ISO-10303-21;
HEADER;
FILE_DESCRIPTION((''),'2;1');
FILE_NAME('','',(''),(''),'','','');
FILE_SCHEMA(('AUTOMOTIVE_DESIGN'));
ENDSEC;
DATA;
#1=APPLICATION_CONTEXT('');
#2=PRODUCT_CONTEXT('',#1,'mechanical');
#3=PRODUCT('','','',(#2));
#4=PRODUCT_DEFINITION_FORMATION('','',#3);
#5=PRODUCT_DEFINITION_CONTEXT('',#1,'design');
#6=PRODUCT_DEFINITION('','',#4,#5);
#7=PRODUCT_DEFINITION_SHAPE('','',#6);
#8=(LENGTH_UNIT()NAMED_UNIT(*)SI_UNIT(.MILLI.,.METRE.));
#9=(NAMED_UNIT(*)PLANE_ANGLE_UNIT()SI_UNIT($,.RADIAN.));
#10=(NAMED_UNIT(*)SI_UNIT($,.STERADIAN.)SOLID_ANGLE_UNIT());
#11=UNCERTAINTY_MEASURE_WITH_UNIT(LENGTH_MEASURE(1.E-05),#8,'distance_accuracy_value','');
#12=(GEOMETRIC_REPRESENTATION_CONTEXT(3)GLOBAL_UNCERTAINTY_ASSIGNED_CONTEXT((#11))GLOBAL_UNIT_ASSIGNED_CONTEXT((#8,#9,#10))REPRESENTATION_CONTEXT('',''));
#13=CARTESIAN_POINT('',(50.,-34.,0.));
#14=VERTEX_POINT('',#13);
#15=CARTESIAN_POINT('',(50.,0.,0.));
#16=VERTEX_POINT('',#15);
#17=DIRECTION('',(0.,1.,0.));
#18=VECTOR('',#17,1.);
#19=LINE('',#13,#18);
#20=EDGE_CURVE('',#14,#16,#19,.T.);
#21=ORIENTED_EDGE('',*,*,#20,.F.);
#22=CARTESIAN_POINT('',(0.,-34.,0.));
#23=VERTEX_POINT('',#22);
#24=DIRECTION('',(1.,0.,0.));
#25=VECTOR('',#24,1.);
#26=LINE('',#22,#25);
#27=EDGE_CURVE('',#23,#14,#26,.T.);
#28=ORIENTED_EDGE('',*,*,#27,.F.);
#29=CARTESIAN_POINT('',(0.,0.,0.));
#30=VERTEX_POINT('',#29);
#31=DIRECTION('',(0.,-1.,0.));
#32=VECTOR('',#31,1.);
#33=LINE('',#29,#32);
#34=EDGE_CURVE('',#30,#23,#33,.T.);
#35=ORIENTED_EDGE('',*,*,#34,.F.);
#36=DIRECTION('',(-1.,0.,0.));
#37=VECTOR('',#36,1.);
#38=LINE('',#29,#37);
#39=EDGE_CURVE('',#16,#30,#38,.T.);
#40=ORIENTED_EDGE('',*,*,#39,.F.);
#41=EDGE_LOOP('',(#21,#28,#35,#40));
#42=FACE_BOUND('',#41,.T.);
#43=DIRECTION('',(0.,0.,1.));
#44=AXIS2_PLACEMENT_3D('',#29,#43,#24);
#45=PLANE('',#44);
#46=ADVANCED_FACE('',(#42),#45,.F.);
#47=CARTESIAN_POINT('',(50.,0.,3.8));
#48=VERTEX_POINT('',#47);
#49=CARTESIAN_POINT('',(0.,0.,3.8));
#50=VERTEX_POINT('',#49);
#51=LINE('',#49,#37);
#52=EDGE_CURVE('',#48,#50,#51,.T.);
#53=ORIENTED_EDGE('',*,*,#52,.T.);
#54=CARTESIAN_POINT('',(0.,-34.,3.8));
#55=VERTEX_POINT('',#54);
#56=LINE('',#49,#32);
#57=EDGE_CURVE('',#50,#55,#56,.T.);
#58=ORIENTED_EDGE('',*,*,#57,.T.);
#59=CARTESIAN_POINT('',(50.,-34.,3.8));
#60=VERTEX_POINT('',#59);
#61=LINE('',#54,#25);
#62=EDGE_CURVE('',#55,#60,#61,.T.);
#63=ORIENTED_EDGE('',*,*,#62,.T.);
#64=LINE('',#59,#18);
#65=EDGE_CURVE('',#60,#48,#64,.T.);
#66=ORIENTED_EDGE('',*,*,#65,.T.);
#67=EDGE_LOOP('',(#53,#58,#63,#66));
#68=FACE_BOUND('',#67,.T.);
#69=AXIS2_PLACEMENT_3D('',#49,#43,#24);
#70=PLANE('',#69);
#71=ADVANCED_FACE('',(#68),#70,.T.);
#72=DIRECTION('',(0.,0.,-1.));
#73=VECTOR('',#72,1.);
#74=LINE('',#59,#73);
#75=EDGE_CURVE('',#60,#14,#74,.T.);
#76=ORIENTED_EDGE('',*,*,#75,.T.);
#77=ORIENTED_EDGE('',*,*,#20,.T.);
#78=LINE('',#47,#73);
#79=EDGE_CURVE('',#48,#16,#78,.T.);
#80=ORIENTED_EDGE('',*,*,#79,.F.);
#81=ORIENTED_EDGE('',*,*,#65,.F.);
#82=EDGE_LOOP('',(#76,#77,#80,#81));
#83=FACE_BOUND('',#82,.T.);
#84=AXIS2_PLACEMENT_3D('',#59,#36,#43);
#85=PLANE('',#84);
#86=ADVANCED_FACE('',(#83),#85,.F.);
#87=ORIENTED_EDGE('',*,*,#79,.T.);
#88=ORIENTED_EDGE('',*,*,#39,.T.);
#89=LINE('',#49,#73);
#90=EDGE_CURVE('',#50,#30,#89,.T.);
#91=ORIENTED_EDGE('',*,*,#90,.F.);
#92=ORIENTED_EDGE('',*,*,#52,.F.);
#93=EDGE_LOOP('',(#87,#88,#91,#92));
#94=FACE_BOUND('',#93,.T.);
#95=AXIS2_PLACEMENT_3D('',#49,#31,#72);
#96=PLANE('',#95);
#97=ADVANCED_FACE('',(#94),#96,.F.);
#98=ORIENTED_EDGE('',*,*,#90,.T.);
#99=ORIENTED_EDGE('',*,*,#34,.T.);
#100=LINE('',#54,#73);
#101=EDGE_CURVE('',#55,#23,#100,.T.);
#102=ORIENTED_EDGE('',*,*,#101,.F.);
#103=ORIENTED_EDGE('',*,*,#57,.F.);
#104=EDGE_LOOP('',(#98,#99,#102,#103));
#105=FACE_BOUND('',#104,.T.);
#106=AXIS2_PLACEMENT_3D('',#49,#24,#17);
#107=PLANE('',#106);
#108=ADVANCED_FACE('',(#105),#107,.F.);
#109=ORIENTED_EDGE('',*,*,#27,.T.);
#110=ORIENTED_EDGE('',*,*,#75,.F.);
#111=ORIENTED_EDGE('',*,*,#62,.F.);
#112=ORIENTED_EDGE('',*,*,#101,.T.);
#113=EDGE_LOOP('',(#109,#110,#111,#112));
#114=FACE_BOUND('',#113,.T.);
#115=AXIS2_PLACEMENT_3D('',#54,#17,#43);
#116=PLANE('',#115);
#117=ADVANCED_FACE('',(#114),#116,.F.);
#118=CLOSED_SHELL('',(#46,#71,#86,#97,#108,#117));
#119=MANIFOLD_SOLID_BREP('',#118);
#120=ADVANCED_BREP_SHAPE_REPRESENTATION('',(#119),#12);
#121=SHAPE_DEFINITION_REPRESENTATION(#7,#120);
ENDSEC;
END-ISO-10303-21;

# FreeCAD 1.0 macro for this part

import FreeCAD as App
import Part
import Sketcher

V = App.Vector
Q = App.Units.Quantity


def add_polygon(sketch, points):
    """Adds a closed chain of lines whose ends are joined by coincident constraints."""
    first, n = sketch.GeometryCount, len(points)
    for a, b in zip(points, points[1:] + points[:1]):
        sketch.addGeometry(Part.LineSegment(App.Vector(*a, 0), App.Vector(*b, 0)), False)
    for i in range(n):
        sketch.addConstraint(Sketcher.Constraint("Coincident", first + i, 2, first + (i + 1) % n, 1))

doc = App.newDocument("Part")
body = doc.addObject("PartDesign::Body", "Body")

# Sketch on XY plane
sketch1 = body.newObject("Sketcher::SketchObject", "Sketch")
sketch1.AttachmentSupport = (doc.getObject("XY_Plane"), [""])
sketch1.MapMode = "FlatFace"
add_polygon(sketch1, [(0, 0), (0, -34), (45, -34), (45, 0)])  # lines 0-3
sketch1.addConstraint([
    Sketcher.Constraint("Vertical", 0),
    Sketcher.Constraint("Horizontal", 1),
    Sketcher.Constraint("Vertical", 2),
    Sketcher.Constraint("Horizontal", 3),
    Sketcher.Constraint("Coincident", 3, 2, -1, 1),
    Sketcher.Constraint("DistanceX", 1, 1, 1, 2, Q("45 mm")),
    Sketcher.Constraint("DistanceY", 0, 2, 0, 1, Q("34 mm")),
])
pad1 = body.newObject("PartDesign::Pad", "Pad")
pad1.Profile = sketch1
pad1.Length = 3.8

# Sketch on XY plane
sketch2 = body.newObject("Sketcher::SketchObject", "Sketch001")
sketch2.AttachmentSupport = (doc.getObject("XY_Plane"), [""])
sketch2.MapMode = "FlatFace"
add_polygon(sketch2, [(45, 0), (45, -34), (50, -34), (50, 0)])  # lines 0-3
sketch2.addConstraint([
    Sketcher.Constraint("Vertical", 0),
    Sketcher.Constraint("Horizontal", 1),
    Sketcher.Constraint("Vertical", 2),
    Sketcher.Constraint("Horizontal", 3),
    Sketcher.Constraint("PointOnObject", 2, 2, -1),
    Sketcher.Constraint("DistanceX", 1, 1, 1, 2, Q("5 mm")),
    Sketcher.Constraint("DistanceY", 0, 2, 0, 1, Q("34 mm")),
    Sketcher.Constraint("DistanceX", -1, 1, 0, 2, Q("45 mm")),
])
pad2 = body.newObject("PartDesign::Pad", "Pad001")
pad2.Profile = sketch2
pad2.Length = 3.8

doc.recompute()
